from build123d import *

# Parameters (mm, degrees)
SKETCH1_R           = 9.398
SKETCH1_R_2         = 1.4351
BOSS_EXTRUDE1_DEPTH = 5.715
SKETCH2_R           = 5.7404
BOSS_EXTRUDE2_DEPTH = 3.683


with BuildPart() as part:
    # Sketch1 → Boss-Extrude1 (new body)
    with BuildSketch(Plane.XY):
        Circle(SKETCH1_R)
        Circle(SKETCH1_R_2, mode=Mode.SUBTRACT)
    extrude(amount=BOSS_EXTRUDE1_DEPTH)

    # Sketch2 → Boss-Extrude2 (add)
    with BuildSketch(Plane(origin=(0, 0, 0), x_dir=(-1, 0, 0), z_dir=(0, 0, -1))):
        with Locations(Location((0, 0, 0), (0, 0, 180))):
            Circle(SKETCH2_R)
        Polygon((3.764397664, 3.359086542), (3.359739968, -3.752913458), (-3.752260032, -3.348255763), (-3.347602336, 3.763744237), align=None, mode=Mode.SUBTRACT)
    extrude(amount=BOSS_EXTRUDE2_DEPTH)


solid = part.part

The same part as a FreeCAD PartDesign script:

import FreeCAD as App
import Part
import Sketcher

V = App.Vector
Q = App.Units.Quantity

doc = App.newDocument("Part")
params = doc.addObject("Spreadsheet::Sheet", "Params")
for row, (alias, value) in enumerate([
    ("sketch1_diameter", "0.74 in"),
    ("sketch1_diameter2", "0.113 in"),
    ("pad1_length", "0.225 in"),
    ("sketch2_diameter", "0.452 in"),
    ("pad2_length", "0.145 in"),
], start=1):
    params.set(f"A{row}", alias)
    params.set(f"B{row}", "=" + value)
    params.setAlias(f"B{row}", alias)

body = doc.addObject("PartDesign::Body", "Body")

sketch1 = body.newObject("Sketcher::SketchObject", "Sketch")
sketch1.AttachmentSupport = (doc.getObject("XY_Plane"), [""])
sketch1.MapMode = "FlatFace"
sketch1.addGeometry(Part.Circle(V(0, 0, 0), V(0, 0, 1), 9.4), False)
sketch1.addGeometry(Part.Circle(V(0, 0, 0), V(0, 0, 1), 1.4), False)
sketch1.addConstraint(Sketcher.Constraint("Coincident", 0, 3, -1, 1))
sketch1.addConstraint(Sketcher.Constraint("Coincident", 1, 3, -1, 1))
sketch1.addConstraint(Sketcher.Constraint("Diameter", 0, Q("0.74 in")))
sketch1.addConstraint(Sketcher.Constraint("Diameter", 1, Q("0.113 in")))
sketch1.setExpression("Constraints[2]", "Params.sketch1_diameter")
sketch1.setExpression("Constraints[3]", "Params.sketch1_diameter2")
pad1 = body.newObject("PartDesign::Pad", "Pad")
pad1.Profile = sketch1
pad1.setExpression("Length", "Params.pad1_length")

sketch2 = body.newObject("Sketcher::SketchObject", "Sketch001")
sketch2.AttachmentSupport = (doc.getObject("XY_Plane"), [""])
sketch2.MapMode = "FlatFace"
sketch2.addGeometry(Part.Circle(V(0, 0, 0), V(0, 0, 1), 6), False)
sketch2.addGeometry(Part.LineSegment(V(3, 4, 0), V(-4, 3, 0)), False)
sketch2.addGeometry(Part.LineSegment(V(-4, 3, 0), V(-3, -4, 0)), False)
sketch2.addGeometry(Part.LineSegment(V(-3, -4, 0), V(4, -3, 0)), False)
sketch2.addGeometry(Part.LineSegment(V(4, -3, 0), V(3, 4, 0)), False)
sketch2.addConstraint(Sketcher.Constraint("Coincident", 1, 2, 2, 1))
sketch2.addConstraint(Sketcher.Constraint("Coincident", 2, 2, 3, 1))
sketch2.addConstraint(Sketcher.Constraint("Coincident", 3, 2, 4, 1))
sketch2.addConstraint(Sketcher.Constraint("Coincident", 4, 2, 1, 1))
sketch2.addConstraint(Sketcher.Constraint("Coincident", 0, 3, -1, 1))
sketch2.addConstraint(Sketcher.Constraint("Perpendicular", 1, 2))
sketch2.addConstraint(Sketcher.Constraint("Perpendicular", 2, 3))
sketch2.addConstraint(Sketcher.Constraint("Perpendicular", 3, 4))
sketch2.addConstraint(Sketcher.Constraint("Equal", 1, 2))
sketch2.addConstraint(Sketcher.Constraint("Diameter", 0, Q("0.452 in")))
sketch2.addConstraint(Sketcher.Constraint("DistanceY", 2, 2, 1, 2, Q("0.28 in")))
sketch2.addConstraint(Sketcher.Constraint("DistanceX", 2, 2, -1, 1, Q("3.35974 mm")))
sketch2.addConstraint(Sketcher.Constraint("Distance", 1, Q("7.123503 mm")))
sketch2.addConstraint(Sketcher.Constraint("DistanceY", -1, 1, 1, 2, Q("3.359087 mm")))
sketch2.setExpression("Constraints[9]", "Params.sketch2_diameter")
pad2 = body.newObject("PartDesign::Pad", "Pad001")
pad2.Profile = sketch2
pad2.setExpression("Length", "Params.pad2_length")
pad2.Reversed = True

doc.recompute()
